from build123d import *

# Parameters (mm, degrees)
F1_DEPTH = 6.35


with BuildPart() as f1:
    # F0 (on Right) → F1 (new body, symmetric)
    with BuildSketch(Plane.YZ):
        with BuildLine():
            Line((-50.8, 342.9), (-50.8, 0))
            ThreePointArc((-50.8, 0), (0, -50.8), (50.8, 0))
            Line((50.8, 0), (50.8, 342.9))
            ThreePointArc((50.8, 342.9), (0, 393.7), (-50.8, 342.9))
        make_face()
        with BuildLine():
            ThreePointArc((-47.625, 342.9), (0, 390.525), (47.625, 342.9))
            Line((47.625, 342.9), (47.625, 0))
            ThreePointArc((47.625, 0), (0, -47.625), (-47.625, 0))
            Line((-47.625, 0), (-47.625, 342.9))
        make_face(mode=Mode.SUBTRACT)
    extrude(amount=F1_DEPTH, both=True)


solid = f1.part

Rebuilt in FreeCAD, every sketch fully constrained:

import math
import FreeCAD as App
import Part
import Sketcher
Q = App.Units.Quantity

doc = App.newDocument("Part")
params = doc.addObject("Spreadsheet::Sheet", "Params")
for row, (alias, value) in enumerate([
    ("sketch1_radius", "2 in"),
    ("sketch1_height", "13.5 in"),
    ("sketch1_radius2", "1.875 in"),
    ("pad1_length", "0.5 in"),
], start=1):
    params.set(f"A{row}", alias)
    params.set(f"B{row}", "=" + value)
    params.setAlias(f"B{row}", alias)

body = doc.addObject("PartDesign::Body", "Body")

sketch1 = doc.addObject("Sketcher::SketchObject", "Sketch")
body.addObject(sketch1)
sketch1.AttachmentSupport = (doc.YZ_Plane, [""])
sketch1.MapMode = "FlatFace"
sketch1.addGeometry([
    Part.LineSegment(App.Vector(-51, 343, 0), App.Vector(-51, 0, 0)),
    Part.ArcOfCircle(Part.Circle(App.Vector(0, 0, 0), App.Vector(0, 0, 1), 51), math.radians(180), math.radians(360)),
    Part.LineSegment(App.Vector(51, 0, 0), App.Vector(51, 343, 0)),
    Part.ArcOfCircle(Part.Circle(App.Vector(0, 343, 0), App.Vector(0, 0, 1), 51), math.radians(0), math.radians(180)),
    Part.LineSegment(App.Vector(-48, 0, 0), App.Vector(-48, 343, 0)),
    Part.ArcOfCircle(Part.Circle(App.Vector(0, 343, 0), App.Vector(0, 0, 1), 48), math.radians(0), math.radians(180)),
    Part.LineSegment(App.Vector(48, 343, 0), App.Vector(48, 0, 0)),
    Part.ArcOfCircle(Part.Circle(App.Vector(0, 0, 0), App.Vector(0, 0, 1), 48), math.radians(180), math.radians(360)),
], False)
sketch1.addConstraint([
    Sketcher.Constraint("Tangent", 0, 2, 1, 1),
    Sketcher.Constraint("Tangent", 1, 2, 2, 1),
    Sketcher.Constraint("Tangent", 2, 2, 3, 1),
    Sketcher.Constraint("Tangent", 3, 2, 0, 1),
    Sketcher.Constraint("Tangent", 4, 2, 5, 2),
    Sketcher.Constraint("Tangent", 5, 1, 6, 1),
    Sketcher.Constraint("Tangent", 6, 2, 7, 2),
    Sketcher.Constraint("Tangent", 7, 1, 4, 1),
    Sketcher.Constraint("Vertical", 0),
    Sketcher.Constraint("Vertical", 2),
    Sketcher.Constraint("Vertical", 4),
    Sketcher.Constraint("Vertical", 6),
    Sketcher.Constraint("Coincident", 1, 3, -1, 1),
    Sketcher.Constraint("Coincident", 7, 3, -1, 1),
    Sketcher.Constraint("Horizontal", 5, 3, 2, 2),
    Sketcher.Constraint("Radius", 1, Q("2 in")),
    Sketcher.Constraint("DistanceY", 0, 2, 0, 1, Q("13.5 in")),
    Sketcher.Constraint("Radius", 5, Q("1.875 in")),
])
sketch1.setExpression("Constraints[15]", "Params.sketch1_radius")
sketch1.setExpression("Constraints[16]", "Params.sketch1_height")
sketch1.setExpression("Constraints[17]", "Params.sketch1_radius2")
pad1 = doc.addObject("PartDesign::Pad", "Pad")
body.addObject(pad1)
pad1.Profile = sketch1
pad1.setExpression("Length", "Params.pad1_length")
pad1.Midplane = True

doc.recompute()
